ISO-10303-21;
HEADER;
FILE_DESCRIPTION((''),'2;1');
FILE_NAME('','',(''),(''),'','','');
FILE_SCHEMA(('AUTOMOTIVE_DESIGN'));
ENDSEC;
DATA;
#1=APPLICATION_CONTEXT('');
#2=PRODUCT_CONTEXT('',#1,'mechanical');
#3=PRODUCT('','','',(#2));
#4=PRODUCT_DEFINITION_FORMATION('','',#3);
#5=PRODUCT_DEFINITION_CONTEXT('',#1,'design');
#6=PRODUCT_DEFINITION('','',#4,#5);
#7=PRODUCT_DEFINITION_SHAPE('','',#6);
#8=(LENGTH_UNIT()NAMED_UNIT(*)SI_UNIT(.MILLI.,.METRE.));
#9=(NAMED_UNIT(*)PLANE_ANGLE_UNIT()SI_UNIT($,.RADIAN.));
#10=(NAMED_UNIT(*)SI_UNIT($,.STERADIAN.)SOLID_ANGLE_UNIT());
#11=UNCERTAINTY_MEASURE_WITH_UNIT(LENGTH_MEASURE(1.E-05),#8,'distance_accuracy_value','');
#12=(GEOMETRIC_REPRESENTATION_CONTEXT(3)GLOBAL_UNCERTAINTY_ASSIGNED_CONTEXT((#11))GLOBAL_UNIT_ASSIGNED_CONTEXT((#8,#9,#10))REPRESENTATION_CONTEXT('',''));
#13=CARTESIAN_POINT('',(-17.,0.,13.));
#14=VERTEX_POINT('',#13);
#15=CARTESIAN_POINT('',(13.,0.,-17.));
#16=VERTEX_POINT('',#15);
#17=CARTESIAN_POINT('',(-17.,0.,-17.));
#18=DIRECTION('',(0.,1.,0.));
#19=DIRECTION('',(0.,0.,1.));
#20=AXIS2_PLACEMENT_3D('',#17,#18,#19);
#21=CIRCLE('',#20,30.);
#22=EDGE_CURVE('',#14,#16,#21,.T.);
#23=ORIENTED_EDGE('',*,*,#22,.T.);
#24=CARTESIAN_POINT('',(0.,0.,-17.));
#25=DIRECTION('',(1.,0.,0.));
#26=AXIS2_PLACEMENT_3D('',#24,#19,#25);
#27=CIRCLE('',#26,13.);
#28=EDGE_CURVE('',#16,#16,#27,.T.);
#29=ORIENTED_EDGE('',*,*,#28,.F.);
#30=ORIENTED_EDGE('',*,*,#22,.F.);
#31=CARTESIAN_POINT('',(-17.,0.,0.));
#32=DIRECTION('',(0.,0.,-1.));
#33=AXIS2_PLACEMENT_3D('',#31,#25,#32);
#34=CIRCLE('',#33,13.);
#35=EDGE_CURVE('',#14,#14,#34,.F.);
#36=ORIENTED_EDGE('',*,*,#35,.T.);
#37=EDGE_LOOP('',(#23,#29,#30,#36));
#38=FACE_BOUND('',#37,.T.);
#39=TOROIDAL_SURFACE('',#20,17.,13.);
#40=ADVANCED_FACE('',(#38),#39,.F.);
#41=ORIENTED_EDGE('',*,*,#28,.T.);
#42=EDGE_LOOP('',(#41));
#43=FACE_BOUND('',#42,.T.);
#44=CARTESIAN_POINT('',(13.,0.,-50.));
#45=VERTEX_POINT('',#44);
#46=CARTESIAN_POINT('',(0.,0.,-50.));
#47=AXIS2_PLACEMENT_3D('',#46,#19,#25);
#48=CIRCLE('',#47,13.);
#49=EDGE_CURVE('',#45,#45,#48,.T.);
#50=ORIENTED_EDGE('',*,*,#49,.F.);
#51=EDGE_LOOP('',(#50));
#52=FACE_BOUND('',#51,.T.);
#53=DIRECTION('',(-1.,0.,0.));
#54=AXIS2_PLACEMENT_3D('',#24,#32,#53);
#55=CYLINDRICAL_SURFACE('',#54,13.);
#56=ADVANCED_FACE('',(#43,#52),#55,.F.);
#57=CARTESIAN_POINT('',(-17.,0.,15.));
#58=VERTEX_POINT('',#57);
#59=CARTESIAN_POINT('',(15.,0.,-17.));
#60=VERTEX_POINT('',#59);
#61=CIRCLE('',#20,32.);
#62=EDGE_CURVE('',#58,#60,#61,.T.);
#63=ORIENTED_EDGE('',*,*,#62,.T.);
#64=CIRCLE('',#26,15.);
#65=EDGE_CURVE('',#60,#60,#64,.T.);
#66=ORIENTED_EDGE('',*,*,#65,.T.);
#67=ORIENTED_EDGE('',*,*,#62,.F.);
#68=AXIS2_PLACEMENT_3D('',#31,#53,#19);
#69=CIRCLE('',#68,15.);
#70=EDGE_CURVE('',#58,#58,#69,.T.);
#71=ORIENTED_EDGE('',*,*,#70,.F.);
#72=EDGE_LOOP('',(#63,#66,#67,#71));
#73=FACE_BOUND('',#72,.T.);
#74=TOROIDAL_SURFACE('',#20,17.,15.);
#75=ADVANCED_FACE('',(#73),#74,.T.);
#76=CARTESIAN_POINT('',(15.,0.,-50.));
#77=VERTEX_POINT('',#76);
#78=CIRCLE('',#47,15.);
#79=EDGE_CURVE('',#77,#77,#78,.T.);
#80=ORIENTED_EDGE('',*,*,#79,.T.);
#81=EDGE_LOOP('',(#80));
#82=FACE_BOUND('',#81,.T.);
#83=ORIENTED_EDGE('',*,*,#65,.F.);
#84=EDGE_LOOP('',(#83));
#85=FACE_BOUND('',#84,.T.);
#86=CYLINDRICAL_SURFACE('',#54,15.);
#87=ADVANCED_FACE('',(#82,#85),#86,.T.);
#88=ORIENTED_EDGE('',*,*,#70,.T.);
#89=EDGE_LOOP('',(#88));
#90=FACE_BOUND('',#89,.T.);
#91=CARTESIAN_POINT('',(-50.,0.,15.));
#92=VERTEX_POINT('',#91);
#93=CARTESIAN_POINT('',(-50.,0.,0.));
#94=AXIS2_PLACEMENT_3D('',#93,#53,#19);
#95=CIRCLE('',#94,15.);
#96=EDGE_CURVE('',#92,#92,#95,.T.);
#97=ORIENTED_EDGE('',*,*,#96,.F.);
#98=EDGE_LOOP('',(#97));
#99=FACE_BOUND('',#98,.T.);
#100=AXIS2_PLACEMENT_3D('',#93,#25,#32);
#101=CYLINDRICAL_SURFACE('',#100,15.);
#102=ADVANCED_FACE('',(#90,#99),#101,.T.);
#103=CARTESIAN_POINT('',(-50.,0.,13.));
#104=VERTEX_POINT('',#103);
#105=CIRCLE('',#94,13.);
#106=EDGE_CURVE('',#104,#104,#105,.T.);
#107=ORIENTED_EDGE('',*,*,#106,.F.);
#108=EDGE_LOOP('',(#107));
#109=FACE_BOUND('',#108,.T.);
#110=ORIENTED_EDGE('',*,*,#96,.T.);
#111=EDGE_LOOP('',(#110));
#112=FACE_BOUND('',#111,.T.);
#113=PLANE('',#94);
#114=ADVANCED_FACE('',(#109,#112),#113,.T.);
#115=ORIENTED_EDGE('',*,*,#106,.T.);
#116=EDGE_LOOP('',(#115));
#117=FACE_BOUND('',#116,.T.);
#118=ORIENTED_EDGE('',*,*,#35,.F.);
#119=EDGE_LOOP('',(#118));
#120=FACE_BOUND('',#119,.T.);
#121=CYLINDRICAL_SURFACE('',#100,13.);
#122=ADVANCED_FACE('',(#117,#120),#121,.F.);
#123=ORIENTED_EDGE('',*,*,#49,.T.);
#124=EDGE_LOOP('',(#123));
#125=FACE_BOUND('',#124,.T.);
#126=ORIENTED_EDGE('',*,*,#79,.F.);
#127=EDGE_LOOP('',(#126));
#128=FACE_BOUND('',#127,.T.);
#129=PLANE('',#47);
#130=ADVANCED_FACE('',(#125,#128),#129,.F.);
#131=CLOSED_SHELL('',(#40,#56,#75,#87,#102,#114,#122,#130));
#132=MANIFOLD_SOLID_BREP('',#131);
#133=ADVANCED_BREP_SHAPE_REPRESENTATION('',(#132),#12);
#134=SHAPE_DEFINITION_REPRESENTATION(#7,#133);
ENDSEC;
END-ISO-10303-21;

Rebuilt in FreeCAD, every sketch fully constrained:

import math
import FreeCAD as App
import Part
import Sketcher

V = App.Vector
Q = App.Units.Quantity


def faces_at(feature, points):
    """Names of the faces that lie closest to the given points."""
    faces = feature.Shape.Faces
    near = lambda p: min(range(len(faces)), key=lambda i: faces[i].distToShape(Part.Vertex(*p))[0])
    return sorted({f"Face{near(p) + 1}" for p in points})

doc = App.newDocument("Part")
body = doc.addObject("PartDesign::Body", "Body")

# Sketch on YZ plane
sketch1 = body.newObject("Sketcher::SketchObject", "Sketch")
sketch1.AttachmentSupport = (doc.getObject("YZ_Plane"), [""])
sketch1.MapMode = "FlatFace"
sketch1.AttachmentOffset = App.Placement(V(0, 0, -50), App.Rotation())
sketch1.addGeometry(Part.Circle(V(0, 0, 0), V(0, 0, 1), 15), False)
sketch1.addConstraint([
    Sketcher.Constraint("Coincident", 0, 3, -1, 1),
    Sketcher.Constraint("Diameter", 0, Q("30 mm")),
])

# Sketch on XZ plane
sketch2 = body.newObject("Sketcher::SketchObject", "Sketch001")
sketch2.AttachmentSupport = (doc.getObject("XZ_Plane"), [""])
sketch2.MapMode = "FlatFace"
sketch2.addGeometry([
    Part.LineSegment(V(-50, 0, 0), V(-17, 0, 0)),
    Part.ArcOfCircle(Part.Circle(V(-17, -17, 0), V(0, 0, 1), 17), math.radians(0), math.radians(90)),
    Part.LineSegment(V(0, -17, 0), V(0, -50, 0)),
], False)
sketch2.addConstraint([
    Sketcher.Constraint("Tangent", 0, 2, 1, 2),
    Sketcher.Constraint("Tangent", 1, 1, 2, 1),
    Sketcher.Constraint("Horizontal", 0),
    Sketcher.Constraint("Vertical", 2),
    Sketcher.Constraint("PointOnObject", 0, 1, -1),
    Sketcher.Constraint("PointOnObject", 1, 1, -2),
    Sketcher.Constraint("Equal", 0, 2),
    Sketcher.Constraint("Radius", 1, Q("17 mm")),
    Sketcher.Constraint("DistanceX", 0, 1, 0, 2, Q("33 mm")),
])
doc.recompute()

additivepipe = body.newObject("PartDesign::AdditivePipe", "AdditivePipe")
additivepipe.Profile = sketch1
additivepipe.Spine = (sketch2, ["Edge1", "Edge2", "Edge3"])
doc.recompute()

thickness = body.newObject("PartDesign::Thickness", "Thickness")
thickness.Base = (additivepipe, faces_at(additivepipe, [(0, 0, -50), (-50, 0, 0)]))
thickness.Value = 2
thickness.Reversed = True
thickness.Join = "Intersection"

doc.recompute()
